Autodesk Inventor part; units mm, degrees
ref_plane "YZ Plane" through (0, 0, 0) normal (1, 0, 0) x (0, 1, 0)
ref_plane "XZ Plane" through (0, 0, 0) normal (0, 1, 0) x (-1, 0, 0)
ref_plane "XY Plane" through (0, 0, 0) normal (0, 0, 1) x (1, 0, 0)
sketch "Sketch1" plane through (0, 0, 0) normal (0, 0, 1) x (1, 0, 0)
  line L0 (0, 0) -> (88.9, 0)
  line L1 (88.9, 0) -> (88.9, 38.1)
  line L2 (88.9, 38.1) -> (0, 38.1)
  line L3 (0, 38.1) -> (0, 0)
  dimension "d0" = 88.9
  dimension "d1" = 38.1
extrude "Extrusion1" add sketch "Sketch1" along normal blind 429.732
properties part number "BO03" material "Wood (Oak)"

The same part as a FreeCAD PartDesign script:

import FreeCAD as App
import Part
import Sketcher
from FreeCAD import Vector
Q = App.Units.Quantity


def add_polygon(sketch, points):
    """Adds a closed chain of lines whose ends are joined by coincident constraints."""
    first, n = sketch.GeometryCount, len(points)
    for a, b in zip(points, points[1:] + points[:1]):
        sketch.addGeometry(Part.LineSegment(App.Vector(*a, 0), App.Vector(*b, 0)), False)
    for i in range(n):
        sketch.addConstraint(Sketcher.Constraint("Coincident", first + i, 2, first + (i + 1) % n, 1))

doc = App.newDocument("Part")
body = doc.addObject("PartDesign::Body", "Body")

sketch1 = doc.addObject("Sketcher::SketchObject", "Sketch")
body.addObject(sketch1)
sketch1.AttachmentSupport = (doc.XY_Plane, [""])
sketch1.MapMode = "FlatFace"
add_polygon(sketch1, [(0, 38), (0, 0), (89, 0), (89, 38)])
sketch1.addConstraint([
    Sketcher.Constraint("Vertical", 0),
    Sketcher.Constraint("Horizontal", 1),
    Sketcher.Constraint("Vertical", 2),
    Sketcher.Constraint("Horizontal", 3),
    Sketcher.Constraint("Coincident", 0, 2, -1, 1),
    Sketcher.Constraint("DistanceX", 1, 1, 1, 2, Q("3.5 in")),
    Sketcher.Constraint("DistanceY", 0, 2, 0, 1, Q("1.5 in")),
])
pad1 = doc.addObject("PartDesign::Pad", "Pad")
body.addObject(pad1)
pad1.Profile = sketch1
pad1.Length = 429.732

doc.recompute()
